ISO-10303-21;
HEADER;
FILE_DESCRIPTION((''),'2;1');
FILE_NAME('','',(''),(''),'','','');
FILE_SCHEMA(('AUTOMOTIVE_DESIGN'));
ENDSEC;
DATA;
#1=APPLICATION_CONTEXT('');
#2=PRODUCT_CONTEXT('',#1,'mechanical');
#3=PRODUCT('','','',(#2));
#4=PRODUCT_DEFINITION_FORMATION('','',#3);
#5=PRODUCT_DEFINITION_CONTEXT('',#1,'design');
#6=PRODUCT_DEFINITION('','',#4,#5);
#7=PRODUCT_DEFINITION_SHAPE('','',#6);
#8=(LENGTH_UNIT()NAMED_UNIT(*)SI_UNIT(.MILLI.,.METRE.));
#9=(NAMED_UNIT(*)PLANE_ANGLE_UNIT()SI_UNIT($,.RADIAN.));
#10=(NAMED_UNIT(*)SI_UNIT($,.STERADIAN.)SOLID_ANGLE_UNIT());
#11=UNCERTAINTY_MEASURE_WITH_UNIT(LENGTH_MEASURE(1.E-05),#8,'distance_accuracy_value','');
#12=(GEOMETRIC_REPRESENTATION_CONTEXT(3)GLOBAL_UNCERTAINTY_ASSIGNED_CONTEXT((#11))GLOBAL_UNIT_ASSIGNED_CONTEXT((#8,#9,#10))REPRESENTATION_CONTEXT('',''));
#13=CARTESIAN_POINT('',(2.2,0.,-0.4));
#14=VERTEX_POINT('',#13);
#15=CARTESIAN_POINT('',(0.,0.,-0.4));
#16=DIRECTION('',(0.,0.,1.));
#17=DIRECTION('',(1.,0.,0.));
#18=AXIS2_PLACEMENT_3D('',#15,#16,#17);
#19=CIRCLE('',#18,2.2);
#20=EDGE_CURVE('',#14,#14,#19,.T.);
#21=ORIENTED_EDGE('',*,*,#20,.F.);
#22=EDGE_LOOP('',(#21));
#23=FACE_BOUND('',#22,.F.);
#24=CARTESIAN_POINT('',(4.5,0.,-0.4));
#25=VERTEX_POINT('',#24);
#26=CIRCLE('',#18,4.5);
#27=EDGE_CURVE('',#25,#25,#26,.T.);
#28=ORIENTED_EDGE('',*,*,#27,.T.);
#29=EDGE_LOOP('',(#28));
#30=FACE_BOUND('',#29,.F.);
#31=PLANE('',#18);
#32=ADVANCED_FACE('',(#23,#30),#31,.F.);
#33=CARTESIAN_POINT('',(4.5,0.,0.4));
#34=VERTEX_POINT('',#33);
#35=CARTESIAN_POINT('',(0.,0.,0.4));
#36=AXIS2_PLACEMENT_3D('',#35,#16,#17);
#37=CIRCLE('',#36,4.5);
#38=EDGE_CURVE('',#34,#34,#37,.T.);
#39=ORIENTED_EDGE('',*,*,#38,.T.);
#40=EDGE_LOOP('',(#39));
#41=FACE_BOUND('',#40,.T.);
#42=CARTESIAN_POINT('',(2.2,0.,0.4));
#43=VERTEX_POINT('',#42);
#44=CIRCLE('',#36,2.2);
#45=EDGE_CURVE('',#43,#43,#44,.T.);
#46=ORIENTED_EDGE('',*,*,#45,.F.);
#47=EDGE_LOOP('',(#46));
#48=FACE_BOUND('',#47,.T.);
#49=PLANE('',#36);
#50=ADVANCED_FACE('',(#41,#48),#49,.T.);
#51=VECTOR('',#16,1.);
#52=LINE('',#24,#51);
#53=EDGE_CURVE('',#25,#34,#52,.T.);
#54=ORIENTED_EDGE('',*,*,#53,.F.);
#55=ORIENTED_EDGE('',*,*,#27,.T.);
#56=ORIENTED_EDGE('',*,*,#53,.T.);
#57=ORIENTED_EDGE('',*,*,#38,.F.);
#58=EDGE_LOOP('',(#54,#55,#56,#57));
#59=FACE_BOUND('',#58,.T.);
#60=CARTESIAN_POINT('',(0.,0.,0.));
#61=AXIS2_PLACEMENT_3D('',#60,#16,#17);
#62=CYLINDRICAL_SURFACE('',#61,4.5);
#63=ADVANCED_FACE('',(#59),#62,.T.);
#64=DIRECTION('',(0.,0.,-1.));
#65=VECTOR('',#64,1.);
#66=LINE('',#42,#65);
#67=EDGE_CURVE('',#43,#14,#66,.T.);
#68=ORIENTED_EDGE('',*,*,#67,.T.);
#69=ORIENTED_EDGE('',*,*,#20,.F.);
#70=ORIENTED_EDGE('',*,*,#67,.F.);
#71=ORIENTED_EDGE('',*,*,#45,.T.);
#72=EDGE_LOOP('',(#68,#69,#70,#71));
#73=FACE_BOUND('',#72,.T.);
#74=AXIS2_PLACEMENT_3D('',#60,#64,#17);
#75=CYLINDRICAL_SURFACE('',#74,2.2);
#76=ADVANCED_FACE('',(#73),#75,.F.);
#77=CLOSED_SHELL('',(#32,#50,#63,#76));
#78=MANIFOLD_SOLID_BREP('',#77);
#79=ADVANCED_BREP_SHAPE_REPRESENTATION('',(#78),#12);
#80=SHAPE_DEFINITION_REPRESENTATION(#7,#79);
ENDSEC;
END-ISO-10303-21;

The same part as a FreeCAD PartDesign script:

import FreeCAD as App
import Part
import Sketcher
Q = App.Units.Quantity

doc = App.newDocument("Part")
body = doc.addObject("PartDesign::Body", "Body")

# Sketch on XY plane
sketch1 = body.newObject("Sketcher::SketchObject", "Sketch")
sketch1.AttachmentSupport = (doc.getObject("XY_Plane"), [""])
sketch1.MapMode = "FlatFace"
sketch1.addGeometry([
    Part.Circle(App.Vector(0, 0, 0), App.Vector(0, 0, 1), 4.5),
    Part.Circle(App.Vector(0, 0, 0), App.Vector(0, 0, 1), 2.2),
], False)
sketch1.addConstraint([
    Sketcher.Constraint("Coincident", 0, 3, -1, 1),
    Sketcher.Constraint("Coincident", 1, 3, -1, 1),
    Sketcher.Constraint("Diameter", 0, Q("9 mm")),
    Sketcher.Constraint("Diameter", 1, Q("4.4 mm")),
])
pad1 = body.newObject("PartDesign::Pad", "Pad")
pad1.Profile = sketch1
pad1.Length = 0.8
pad1.Midplane = True

doc.recompute()
